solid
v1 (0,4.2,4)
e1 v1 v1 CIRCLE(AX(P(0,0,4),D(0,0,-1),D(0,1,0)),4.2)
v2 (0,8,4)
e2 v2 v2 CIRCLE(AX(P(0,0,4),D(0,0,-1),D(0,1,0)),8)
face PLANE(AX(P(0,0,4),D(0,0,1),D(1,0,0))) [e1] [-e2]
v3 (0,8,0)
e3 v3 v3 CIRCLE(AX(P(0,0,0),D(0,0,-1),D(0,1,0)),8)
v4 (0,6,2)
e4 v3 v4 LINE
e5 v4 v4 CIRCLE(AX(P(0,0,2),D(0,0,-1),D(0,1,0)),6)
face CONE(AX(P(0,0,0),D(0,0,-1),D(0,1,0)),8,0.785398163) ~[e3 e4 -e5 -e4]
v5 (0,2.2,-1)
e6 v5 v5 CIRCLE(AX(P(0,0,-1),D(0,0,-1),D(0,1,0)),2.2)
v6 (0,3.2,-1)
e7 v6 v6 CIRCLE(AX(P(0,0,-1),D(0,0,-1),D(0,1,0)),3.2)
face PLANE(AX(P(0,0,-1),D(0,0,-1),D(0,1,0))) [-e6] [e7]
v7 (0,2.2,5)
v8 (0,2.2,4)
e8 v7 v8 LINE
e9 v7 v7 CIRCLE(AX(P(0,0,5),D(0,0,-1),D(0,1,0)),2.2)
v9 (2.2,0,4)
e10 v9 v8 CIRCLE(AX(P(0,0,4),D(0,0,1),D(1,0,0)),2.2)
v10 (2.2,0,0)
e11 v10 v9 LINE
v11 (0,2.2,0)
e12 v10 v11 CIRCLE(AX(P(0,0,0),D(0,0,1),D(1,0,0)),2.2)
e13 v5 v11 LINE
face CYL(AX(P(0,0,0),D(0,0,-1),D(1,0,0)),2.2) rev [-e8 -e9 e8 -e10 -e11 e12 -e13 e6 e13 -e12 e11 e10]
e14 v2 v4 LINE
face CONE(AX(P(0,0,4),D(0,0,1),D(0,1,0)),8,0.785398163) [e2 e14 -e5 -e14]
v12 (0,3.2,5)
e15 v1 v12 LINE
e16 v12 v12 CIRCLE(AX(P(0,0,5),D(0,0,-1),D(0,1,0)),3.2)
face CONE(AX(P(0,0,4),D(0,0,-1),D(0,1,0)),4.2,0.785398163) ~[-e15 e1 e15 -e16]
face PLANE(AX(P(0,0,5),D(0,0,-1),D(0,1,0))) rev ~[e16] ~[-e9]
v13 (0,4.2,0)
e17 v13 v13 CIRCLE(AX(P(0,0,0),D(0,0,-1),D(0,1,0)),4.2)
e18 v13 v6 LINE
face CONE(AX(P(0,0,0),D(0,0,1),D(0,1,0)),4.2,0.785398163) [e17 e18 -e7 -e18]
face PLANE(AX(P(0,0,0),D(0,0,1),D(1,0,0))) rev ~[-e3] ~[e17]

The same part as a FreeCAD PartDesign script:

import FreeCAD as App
import Part
import Sketcher
from FreeCAD import Vector
Q = App.Units.Quantity


def add_polygon(sketch, points):
    """Adds a closed chain of lines whose ends are joined by coincident constraints."""
    first, n = sketch.GeometryCount, len(points)
    for a, b in zip(points, points[1:] + points[:1]):
        sketch.addGeometry(Part.LineSegment(App.Vector(*a, 0), App.Vector(*b, 0)), False)
    for i in range(n):
        sketch.addConstraint(Sketcher.Constraint("Coincident", first + i, 2, first + (i + 1) % n, 1))

doc = App.newDocument("Part")
params = doc.addObject("Spreadsheet::Sheet", "Params")
for row, (alias, value) in enumerate([
    ("sketch1_diameter", "12 mm"),
    ("sketch1_diameter2", "4.4 mm"),
    ("pad1_length", "4 mm"),
    ("sketch2_width", "2 mm"),
    ("revolution_angle", "360 deg"),
], start=1):
    params.set(f"A{row}", alias)
    params.set(f"B{row}", "=" + value)
    params.setAlias(f"B{row}", alias)

body = doc.addObject("PartDesign::Body", "Body")

sketch1 = body.newObject("Sketcher::SketchObject", "Sketch")
sketch1.AttachmentSupport = (doc.getObject("XY_Plane"), [""])
sketch1.MapMode = "FlatFace"
sketch1.addGeometry([
    Part.Circle(Vector(0, 0, 0), Vector(0, 0, 1), 6),
    Part.Circle(Vector(0, 0, 0), Vector(0, 0, 1), 2.2),
], False)
sketch1.addConstraint([
    Sketcher.Constraint("Coincident", 0, 3, -1, 1),
    Sketcher.Constraint("Coincident", 1, 3, -1, 1),
    Sketcher.Constraint("Diameter", 0, Q("12 mm")),
    Sketcher.Constraint("Diameter", 1, Q("4.4 mm")),
])
sketch1.setExpression("Constraints[2]", "Params.sketch1_diameter")
sketch1.setExpression("Constraints[3]", "Params.sketch1_diameter2")
pad1 = body.newObject("PartDesign::Pad", "Pad")
pad1.Profile = sketch1
pad1.setExpression("Length", "Params.pad1_length")

sketch2 = body.newObject("Sketcher::SketchObject", "Sketch001")
sketch2.AttachmentSupport = (doc.getObject("YZ_Plane"), [""])
sketch2.MapMode = "FlatFace"
add_polygon(sketch2, [(6, 2), (6, 0), (8, 0)])
add_polygon(sketch2, [(6, 4), (6, 2), (8, 4)])
add_polygon(sketch2, [(3.2, -1), (4.2, 0), (2.2, 0), (2.2, -1)])
add_polygon(sketch2, [(2.2, 4), (4.2, 4), (3.2, 5), (2.2, 5)])
sketch2.addConstraint([
    Sketcher.Constraint("Vertical", 0),
    Sketcher.Constraint("Horizontal", 1),
    Sketcher.Constraint("Vertical", 3),
    Sketcher.Constraint("Horizontal", 5),
    Sketcher.Constraint("Horizontal", 7),
    Sketcher.Constraint("Vertical", 8),
    Sketcher.Constraint("Horizontal", 9),
    Sketcher.Constraint("Horizontal", 10),
    Sketcher.Constraint("Horizontal", 12),
    Sketcher.Constraint("Vertical", 13),
    Sketcher.Constraint("Coincident", 3, 2, 2, 2),
    Sketcher.Constraint("PointOnObject", 0, 2, -1),
    Sketcher.Constraint("PointOnObject", 6, 2, -1),
    Sketcher.Constraint("Perpendicular", 2, 4),
    Sketcher.Constraint("Parallel", 4, 6),
    Sketcher.Constraint("Perpendicular", 6, 11),
    Sketcher.Constraint("Horizontal", 5, 2, 10, 2),
    Sketcher.Constraint("Vertical", 1, 2, 4, 2),
    Sketcher.Constraint("Vertical", 6, 2, 10, 2),
    Sketcher.Constraint("Vertical", 9, 2, 11, 2),
    Sketcher.Constraint("Vertical", 8, 2, 12, 2),
    Sketcher.Constraint("Equal", 5, 7),
    Sketcher.Constraint("Equal", 10, 0),
    Sketcher.Constraint("Equal", 12, 8),
    Sketcher.Constraint("DistanceX", 1, 1, 1, 2, Q("2 mm")),
    Sketcher.Constraint("DistanceX", -1, 1, 0, 2, Q("6 mm")),
    Sketcher.Constraint("DistanceX", -1, 1, 6, 2, Q("4.2 mm")),
])
sketch2.setExpression("Constraints[38]", "Params.sketch2_width")
revolution = body.newObject("PartDesign::Revolution", "Revolution")
revolution.Profile = sketch2
revolution.ReferenceAxis = (sketch2, ["V_Axis"])
revolution.setExpression("Angle", "Params.revolution_angle")

doc.recompute()
